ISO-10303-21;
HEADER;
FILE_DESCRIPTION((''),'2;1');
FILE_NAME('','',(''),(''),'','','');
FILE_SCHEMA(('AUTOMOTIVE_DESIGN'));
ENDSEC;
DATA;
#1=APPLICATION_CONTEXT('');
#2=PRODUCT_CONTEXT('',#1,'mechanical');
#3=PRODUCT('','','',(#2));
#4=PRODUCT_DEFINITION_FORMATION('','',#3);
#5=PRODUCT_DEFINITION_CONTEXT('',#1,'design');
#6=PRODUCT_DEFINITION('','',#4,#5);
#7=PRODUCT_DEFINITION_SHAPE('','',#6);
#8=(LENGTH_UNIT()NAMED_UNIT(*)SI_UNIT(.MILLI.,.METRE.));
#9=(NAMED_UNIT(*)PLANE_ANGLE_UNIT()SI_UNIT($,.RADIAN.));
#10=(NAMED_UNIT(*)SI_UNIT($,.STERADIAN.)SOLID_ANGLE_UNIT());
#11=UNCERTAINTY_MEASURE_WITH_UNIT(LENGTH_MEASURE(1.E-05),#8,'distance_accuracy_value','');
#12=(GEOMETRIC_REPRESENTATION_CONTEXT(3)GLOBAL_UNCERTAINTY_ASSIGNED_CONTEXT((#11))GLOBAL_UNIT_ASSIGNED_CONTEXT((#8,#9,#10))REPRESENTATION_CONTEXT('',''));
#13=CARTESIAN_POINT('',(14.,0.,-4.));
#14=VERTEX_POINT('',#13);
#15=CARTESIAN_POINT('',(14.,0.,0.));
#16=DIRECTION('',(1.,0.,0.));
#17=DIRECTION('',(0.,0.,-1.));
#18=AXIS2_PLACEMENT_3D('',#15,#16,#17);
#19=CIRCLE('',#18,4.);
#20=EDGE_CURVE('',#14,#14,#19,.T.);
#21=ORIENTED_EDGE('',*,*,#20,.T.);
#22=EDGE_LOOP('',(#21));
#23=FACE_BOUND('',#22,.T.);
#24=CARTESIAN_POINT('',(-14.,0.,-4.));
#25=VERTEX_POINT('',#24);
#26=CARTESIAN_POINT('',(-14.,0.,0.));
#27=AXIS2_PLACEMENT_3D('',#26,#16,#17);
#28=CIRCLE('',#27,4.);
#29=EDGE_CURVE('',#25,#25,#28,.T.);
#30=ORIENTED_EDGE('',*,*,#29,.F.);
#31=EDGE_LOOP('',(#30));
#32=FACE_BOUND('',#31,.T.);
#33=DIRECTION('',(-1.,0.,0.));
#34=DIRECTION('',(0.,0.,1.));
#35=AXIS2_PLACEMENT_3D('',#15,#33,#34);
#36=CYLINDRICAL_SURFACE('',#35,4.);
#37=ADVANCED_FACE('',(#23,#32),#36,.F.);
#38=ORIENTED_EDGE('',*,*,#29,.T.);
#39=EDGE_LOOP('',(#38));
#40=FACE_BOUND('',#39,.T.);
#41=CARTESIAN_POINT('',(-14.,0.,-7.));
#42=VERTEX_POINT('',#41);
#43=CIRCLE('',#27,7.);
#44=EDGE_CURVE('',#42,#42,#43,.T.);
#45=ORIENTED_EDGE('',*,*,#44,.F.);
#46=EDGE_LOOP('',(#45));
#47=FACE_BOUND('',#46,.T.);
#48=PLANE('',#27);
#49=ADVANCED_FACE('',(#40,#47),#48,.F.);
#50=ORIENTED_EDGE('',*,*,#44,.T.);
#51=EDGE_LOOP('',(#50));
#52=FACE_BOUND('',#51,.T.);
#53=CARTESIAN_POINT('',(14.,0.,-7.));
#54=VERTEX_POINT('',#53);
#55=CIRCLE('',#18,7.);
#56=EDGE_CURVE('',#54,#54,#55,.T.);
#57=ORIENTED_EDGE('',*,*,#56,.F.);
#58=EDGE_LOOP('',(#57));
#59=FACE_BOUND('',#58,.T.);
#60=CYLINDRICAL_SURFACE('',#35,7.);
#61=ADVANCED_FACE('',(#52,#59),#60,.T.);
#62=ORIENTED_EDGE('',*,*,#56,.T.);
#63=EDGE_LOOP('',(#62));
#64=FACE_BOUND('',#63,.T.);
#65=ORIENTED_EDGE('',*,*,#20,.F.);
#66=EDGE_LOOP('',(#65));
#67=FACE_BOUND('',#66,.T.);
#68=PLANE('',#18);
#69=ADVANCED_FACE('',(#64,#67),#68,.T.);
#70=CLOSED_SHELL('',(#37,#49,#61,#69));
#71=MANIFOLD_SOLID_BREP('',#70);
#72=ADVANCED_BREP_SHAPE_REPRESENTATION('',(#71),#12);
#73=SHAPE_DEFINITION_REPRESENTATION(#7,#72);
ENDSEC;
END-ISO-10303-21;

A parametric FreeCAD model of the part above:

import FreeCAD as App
import Part
import Sketcher

V = App.Vector
Q = App.Units.Quantity

doc = App.newDocument("Part")
body = doc.addObject("PartDesign::Body", "Body")

# Sketch on YZ plane
sketch1 = body.newObject("Sketcher::SketchObject", "Sketch")
sketch1.AttachmentSupport = (doc.getObject("YZ_Plane"), [""])
sketch1.MapMode = "FlatFace"
sketch1.addGeometry([
    Part.Circle(V(0, 0, 0), V(0, 0, 1), 7),
    Part.Circle(V(0, 0, 0), V(0, 0, 1), 4),
], False)
sketch1.addConstraint([
    Sketcher.Constraint("Coincident", 0, 3, -1, 1),
    Sketcher.Constraint("Coincident", 1, 3, -1, 1),
    Sketcher.Constraint("Diameter", 0, Q("14 mm")),
    Sketcher.Constraint("Diameter", 1, Q("8 mm")),
])
pad1 = body.newObject("PartDesign::Pad", "Pad")
pad1.Profile = sketch1
pad1.Length = 28
pad1.Midplane = True

doc.recompute()
